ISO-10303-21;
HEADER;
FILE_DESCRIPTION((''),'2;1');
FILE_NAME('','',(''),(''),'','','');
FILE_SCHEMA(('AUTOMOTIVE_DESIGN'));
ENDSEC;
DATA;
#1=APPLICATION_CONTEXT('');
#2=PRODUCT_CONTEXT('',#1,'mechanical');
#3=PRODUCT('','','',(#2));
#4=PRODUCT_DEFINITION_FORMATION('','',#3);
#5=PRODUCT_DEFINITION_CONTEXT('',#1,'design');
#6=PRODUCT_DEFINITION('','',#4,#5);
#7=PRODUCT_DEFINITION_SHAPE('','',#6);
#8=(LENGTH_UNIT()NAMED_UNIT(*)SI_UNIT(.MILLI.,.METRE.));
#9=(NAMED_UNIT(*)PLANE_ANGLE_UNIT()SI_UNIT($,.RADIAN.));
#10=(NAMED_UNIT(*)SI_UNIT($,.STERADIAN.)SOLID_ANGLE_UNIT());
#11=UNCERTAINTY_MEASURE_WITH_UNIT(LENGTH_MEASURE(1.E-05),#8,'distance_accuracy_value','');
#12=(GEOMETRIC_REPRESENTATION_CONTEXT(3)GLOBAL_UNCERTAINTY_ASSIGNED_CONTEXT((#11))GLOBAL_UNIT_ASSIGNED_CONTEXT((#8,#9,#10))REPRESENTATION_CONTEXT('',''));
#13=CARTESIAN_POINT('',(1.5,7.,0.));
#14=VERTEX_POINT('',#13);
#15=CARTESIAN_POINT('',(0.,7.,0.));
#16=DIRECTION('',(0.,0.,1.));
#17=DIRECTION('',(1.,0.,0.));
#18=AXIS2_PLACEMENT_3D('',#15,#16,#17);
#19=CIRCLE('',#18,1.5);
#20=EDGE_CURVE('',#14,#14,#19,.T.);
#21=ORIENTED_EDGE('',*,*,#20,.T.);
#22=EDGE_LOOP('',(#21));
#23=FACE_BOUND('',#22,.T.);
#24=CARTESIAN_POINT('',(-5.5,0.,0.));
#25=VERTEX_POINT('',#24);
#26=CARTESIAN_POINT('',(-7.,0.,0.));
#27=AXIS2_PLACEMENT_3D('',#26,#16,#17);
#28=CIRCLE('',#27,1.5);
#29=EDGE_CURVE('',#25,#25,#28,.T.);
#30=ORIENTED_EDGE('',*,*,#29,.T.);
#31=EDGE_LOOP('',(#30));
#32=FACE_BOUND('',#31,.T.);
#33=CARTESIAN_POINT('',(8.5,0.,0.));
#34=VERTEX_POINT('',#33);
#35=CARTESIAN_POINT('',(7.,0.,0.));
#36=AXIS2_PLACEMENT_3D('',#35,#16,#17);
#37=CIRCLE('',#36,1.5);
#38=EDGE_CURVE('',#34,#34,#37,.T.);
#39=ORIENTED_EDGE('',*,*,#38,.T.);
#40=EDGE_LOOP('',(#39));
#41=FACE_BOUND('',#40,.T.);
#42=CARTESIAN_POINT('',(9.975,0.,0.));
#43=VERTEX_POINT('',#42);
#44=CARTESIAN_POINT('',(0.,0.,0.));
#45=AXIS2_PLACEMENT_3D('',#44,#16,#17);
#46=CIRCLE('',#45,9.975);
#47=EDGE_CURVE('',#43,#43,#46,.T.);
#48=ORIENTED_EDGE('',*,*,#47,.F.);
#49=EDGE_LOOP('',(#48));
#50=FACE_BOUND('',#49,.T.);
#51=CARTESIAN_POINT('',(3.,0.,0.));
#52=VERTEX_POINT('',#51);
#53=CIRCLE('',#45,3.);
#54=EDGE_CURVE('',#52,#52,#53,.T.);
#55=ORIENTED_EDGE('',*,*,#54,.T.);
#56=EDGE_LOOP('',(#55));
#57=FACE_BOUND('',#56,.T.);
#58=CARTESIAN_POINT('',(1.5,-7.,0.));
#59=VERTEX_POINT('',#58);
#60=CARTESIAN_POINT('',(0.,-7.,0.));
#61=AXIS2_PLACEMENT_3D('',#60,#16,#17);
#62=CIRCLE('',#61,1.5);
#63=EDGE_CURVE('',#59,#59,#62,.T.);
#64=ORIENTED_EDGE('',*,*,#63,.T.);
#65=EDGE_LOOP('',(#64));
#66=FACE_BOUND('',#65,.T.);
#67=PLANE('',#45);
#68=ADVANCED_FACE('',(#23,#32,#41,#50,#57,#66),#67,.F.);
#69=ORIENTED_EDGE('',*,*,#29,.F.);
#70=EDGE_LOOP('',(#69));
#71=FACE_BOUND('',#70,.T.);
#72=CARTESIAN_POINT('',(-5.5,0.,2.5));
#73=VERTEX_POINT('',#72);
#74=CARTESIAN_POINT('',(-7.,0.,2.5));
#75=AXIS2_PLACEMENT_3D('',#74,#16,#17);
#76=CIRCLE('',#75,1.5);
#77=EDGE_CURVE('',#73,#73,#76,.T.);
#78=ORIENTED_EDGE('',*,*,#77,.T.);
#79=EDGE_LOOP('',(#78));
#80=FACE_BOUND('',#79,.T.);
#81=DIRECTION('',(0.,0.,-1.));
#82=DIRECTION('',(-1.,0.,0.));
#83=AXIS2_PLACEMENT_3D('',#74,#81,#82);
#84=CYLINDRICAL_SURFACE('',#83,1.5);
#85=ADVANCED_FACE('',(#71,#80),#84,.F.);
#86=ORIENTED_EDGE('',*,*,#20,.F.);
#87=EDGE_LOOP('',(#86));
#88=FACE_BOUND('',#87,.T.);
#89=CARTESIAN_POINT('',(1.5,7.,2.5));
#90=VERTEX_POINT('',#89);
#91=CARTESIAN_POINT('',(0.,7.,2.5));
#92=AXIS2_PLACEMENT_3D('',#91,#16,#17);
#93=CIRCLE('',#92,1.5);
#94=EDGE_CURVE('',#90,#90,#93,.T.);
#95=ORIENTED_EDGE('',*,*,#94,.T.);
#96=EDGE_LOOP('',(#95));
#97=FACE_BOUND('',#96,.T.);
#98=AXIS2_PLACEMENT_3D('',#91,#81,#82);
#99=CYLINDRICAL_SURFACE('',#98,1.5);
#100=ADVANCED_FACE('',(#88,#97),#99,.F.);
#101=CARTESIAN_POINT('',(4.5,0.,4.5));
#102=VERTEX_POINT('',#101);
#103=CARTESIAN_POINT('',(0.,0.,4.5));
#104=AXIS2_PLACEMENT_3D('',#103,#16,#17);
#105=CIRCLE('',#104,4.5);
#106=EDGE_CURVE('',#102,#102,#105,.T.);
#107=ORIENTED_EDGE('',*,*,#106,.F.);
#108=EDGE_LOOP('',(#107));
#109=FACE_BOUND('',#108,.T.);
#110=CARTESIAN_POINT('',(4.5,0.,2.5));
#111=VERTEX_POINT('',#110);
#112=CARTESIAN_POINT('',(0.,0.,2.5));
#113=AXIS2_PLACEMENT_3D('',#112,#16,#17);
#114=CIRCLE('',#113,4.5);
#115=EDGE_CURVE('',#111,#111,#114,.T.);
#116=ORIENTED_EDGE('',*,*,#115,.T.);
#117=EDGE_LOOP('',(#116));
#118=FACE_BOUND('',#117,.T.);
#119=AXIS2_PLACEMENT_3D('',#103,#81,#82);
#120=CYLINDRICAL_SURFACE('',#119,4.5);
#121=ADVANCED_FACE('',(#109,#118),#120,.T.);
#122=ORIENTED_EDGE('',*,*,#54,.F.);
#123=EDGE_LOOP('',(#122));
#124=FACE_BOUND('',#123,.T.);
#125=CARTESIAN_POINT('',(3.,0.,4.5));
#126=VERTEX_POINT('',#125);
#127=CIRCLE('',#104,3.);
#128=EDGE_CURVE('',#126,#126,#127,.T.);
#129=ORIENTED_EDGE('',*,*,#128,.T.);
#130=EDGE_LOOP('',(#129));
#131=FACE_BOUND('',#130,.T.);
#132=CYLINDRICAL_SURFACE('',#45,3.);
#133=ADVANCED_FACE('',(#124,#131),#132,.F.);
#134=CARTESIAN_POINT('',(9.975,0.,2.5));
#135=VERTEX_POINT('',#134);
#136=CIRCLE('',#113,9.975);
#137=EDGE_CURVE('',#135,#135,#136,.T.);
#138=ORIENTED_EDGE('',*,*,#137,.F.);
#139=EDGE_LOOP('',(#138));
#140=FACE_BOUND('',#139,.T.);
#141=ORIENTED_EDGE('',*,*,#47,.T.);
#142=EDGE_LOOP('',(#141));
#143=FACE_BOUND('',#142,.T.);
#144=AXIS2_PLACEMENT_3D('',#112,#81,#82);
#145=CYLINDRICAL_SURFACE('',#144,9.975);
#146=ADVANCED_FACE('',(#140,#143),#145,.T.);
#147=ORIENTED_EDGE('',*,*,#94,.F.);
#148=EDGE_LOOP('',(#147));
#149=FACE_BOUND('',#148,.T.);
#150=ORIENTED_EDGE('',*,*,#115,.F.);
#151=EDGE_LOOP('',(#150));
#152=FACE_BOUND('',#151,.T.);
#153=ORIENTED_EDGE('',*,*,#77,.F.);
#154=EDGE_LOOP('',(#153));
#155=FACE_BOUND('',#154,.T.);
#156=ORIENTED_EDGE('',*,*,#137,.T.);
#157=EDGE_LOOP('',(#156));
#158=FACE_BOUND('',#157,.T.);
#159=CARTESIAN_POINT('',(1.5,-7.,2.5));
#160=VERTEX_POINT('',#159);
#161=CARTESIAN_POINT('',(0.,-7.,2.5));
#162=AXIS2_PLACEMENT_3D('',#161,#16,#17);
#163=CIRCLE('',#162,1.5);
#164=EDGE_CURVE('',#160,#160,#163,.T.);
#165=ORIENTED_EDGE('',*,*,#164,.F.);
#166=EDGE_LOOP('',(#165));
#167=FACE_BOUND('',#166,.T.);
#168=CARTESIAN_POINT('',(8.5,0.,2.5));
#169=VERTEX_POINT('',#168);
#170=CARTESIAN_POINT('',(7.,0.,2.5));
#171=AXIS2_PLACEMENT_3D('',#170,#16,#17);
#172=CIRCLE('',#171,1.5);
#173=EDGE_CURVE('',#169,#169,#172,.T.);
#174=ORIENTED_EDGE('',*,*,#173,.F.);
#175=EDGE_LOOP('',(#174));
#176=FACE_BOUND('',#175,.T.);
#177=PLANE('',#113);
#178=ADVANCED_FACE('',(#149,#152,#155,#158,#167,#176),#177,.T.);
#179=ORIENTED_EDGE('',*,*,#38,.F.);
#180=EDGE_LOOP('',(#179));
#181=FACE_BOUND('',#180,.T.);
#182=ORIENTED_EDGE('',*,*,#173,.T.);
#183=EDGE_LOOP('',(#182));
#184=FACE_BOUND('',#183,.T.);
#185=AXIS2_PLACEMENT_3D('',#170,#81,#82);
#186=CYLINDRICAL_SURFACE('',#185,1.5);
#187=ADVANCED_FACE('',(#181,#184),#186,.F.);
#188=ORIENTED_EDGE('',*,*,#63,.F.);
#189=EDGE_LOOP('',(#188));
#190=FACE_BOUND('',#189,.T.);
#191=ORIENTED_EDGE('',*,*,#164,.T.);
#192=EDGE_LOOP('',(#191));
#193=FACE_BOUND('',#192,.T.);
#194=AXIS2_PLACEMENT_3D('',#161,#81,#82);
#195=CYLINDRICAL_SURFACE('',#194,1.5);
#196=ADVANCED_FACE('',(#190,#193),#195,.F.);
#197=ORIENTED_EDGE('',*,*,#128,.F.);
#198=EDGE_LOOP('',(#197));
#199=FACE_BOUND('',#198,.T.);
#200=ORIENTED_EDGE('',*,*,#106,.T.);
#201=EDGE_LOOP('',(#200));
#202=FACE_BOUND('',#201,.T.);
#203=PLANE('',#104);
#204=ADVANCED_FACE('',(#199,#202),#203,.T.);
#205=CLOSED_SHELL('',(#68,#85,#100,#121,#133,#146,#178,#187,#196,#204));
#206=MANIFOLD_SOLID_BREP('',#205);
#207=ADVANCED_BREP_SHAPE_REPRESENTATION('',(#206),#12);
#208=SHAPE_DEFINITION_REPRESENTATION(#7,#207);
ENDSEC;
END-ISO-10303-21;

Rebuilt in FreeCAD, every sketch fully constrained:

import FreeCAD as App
import Part
import Sketcher
Q = App.Units.Quantity

doc = App.newDocument("Part")
params = doc.addObject("Spreadsheet::Sheet", "Params")
for row, (alias, value) in enumerate([
    ("sketch1_diameter", "3 mm"),
    ("sketch1_diameter2", "19.95 mm"),
    ("pad1_length", "2.5 mm"),
    ("sketch2_diameter", "9 mm"),
    ("pad2_length", "2 mm"),
    ("sketch3_diameter", "6 mm"),
], start=1):
    params.set(f"A{row}", alias)
    params.set(f"B{row}", "=" + value)
    params.setAlias(f"B{row}", alias)

body = doc.addObject("PartDesign::Body", "Body")

# Sketch on XY plane
sketch1 = body.newObject("Sketcher::SketchObject", "Sketch")
sketch1.AttachmentSupport = (doc.getObject("XY_Plane"), [""])
sketch1.MapMode = "FlatFace"
sketch1.addGeometry([
    Part.Circle(App.Vector(0, 0, 0), App.Vector(0, 0, 1), 10),  # 0
    Part.Circle(App.Vector(0, -7, 0), App.Vector(0, 0, 1), 1.5),  # 1
    Part.Circle(App.Vector(-7, 0, 0), App.Vector(0, 0, 1), 1.5),  # 2
    Part.Circle(App.Vector(7, 0, 0), App.Vector(0, 0, 1), 1.5),  # 3
    Part.Circle(App.Vector(0, 7, 0), App.Vector(0, 0, 1), 1.5),  # 4
], False)
sketch1.addConstraint([
    Sketcher.Constraint("Coincident", 0, 3, -1, 1),
    Sketcher.Constraint("Equal", 1, 2),
    Sketcher.Constraint("Equal", 2, 3),
    Sketcher.Constraint("Equal", 3, 4),
    Sketcher.Constraint("Symmetric", 2, 3, 3, 3, -1, 1),
    Sketcher.Constraint("Symmetric", 1, 3, 4, 3, -1, 1),
    Sketcher.Constraint("PointOnObject", 1, 3, -2),
    Sketcher.Constraint("PointOnObject", 2, 3, -1),
    Sketcher.Constraint("Diameter", 1, Q("3 mm")),
    Sketcher.Constraint("Diameter", 0, Q("19.95 mm")),
    Sketcher.Constraint("DistanceY", 1, 3, -1, 1, Q("7 mm")),
    Sketcher.Constraint("DistanceX", 2, 3, -1, 1, Q("7 mm")),
])
sketch1.setExpression("Constraints[8]", "Params.sketch1_diameter")
sketch1.setExpression("Constraints[9]", "Params.sketch1_diameter2")
pad1 = body.newObject("PartDesign::Pad", "Pad")
pad1.Profile = sketch1
pad1.setExpression("Length", "Params.pad1_length")

# Sketch on XY plane
sketch2 = body.newObject("Sketcher::SketchObject", "Sketch001")
sketch2.AttachmentSupport = (doc.getObject("XY_Plane"), [""])
sketch2.MapMode = "FlatFace"
sketch2.AttachmentOffset = App.Placement(App.Vector(0, 0, 2.5), App.Rotation())
sketch2.addGeometry(Part.Circle(App.Vector(0, 0, 0), App.Vector(0, 0, 1), 4.5), False)
sketch2.addConstraint([
    Sketcher.Constraint("Coincident", 0, 3, -1, 1),
    Sketcher.Constraint("Diameter", 0, Q("9 mm")),
])
sketch2.setExpression("Constraints[1]", "Params.sketch2_diameter")
pad2 = body.newObject("PartDesign::Pad", "Pad001")
pad2.Profile = sketch2
pad2.setExpression("Length", "Params.pad2_length")

# Sketch on XY plane
sketch3 = body.newObject("Sketcher::SketchObject", "Sketch002")
sketch3.AttachmentSupport = (doc.getObject("XY_Plane"), [""])
sketch3.MapMode = "FlatFace"
sketch3.AttachmentOffset = App.Placement(App.Vector(0, 0, 4.5), App.Rotation())
sketch3.addGeometry(Part.Circle(App.Vector(0, 0, 0), App.Vector(0, 0, 1), 3), False)
sketch3.addConstraint([
    Sketcher.Constraint("Coincident", 0, 3, -1, 1),
    Sketcher.Constraint("Diameter", 0, Q("6 mm")),
])
sketch3.setExpression("Constraints[1]", "Params.sketch3_diameter")
pocket1 = body.newObject("PartDesign::Pocket", "Pocket")
pocket1.Profile = sketch3
pocket1.Type = "ThroughAll"

doc.recompute()
